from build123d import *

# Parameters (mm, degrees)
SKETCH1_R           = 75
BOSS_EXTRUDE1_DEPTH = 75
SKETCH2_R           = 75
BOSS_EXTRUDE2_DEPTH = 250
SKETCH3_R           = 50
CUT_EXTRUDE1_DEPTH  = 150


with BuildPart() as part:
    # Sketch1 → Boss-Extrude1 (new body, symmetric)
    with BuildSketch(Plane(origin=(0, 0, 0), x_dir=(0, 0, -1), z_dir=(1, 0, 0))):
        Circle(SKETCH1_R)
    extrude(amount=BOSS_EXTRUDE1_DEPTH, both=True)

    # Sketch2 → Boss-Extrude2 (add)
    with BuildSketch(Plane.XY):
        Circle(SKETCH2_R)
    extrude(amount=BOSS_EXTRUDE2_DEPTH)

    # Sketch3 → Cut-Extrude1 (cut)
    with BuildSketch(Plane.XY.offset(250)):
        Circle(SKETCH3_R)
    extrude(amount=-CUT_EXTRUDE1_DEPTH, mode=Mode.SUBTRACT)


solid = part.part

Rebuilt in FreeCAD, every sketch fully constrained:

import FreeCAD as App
import Part
import Sketcher
Q = App.Units.Quantity

doc = App.newDocument("Part")
params = doc.addObject("Spreadsheet::Sheet", "Params")
for row, (alias, value) in enumerate([
    ("sketch1_diameter", "150 mm"),
    ("pad1_length", "150 mm"),
    ("sketch2_diameter", "150 mm"),
    ("pad2_length", "250 mm"),
    ("sketch3_diameter", "100 mm"),
    ("pocket1_length", "150 mm"),
], start=1):
    params.set(f"A{row}", alias)
    params.set(f"B{row}", "=" + value)
    params.setAlias(f"B{row}", alias)

body = doc.addObject("PartDesign::Body", "Body")

# Sketch on YZ plane
sketch1 = body.newObject("Sketcher::SketchObject", "Sketch")
sketch1.AttachmentSupport = (doc.getObject("YZ_Plane"), [""])
sketch1.MapMode = "FlatFace"
sketch1.addGeometry(Part.Circle(App.Vector(0, 0, 0), App.Vector(0, 0, 1), 75), False)
sketch1.addConstraint(Sketcher.Constraint("Coincident", 0, 3, -1, 1))
sketch1.addConstraint(Sketcher.Constraint("Diameter", 0, Q("150 mm")))
sketch1.setExpression("Constraints[1]", "Params.sketch1_diameter")
pad1 = body.newObject("PartDesign::Pad", "Pad")
pad1.Profile = sketch1
pad1.setExpression("Length", "Params.pad1_length")
pad1.Midplane = True

# Sketch on XY plane
sketch2 = body.newObject("Sketcher::SketchObject", "Sketch001")
sketch2.AttachmentSupport = (doc.getObject("XY_Plane"), [""])
sketch2.MapMode = "FlatFace"
sketch2.addGeometry(Part.Circle(App.Vector(0, 0, 0), App.Vector(0, 0, 1), 75), False)
sketch2.addConstraint(Sketcher.Constraint("Coincident", 0, 3, -1, 1))
sketch2.addConstraint(Sketcher.Constraint("Diameter", 0, Q("150 mm")))
sketch2.setExpression("Constraints[1]", "Params.sketch2_diameter")
pad2 = body.newObject("PartDesign::Pad", "Pad001")
pad2.Profile = sketch2
pad2.setExpression("Length", "Params.pad2_length")

# Sketch on XY plane
sketch3 = body.newObject("Sketcher::SketchObject", "Sketch002")
sketch3.AttachmentSupport = (doc.getObject("XY_Plane"), [""])
sketch3.MapMode = "FlatFace"
sketch3.AttachmentOffset = App.Placement(App.Vector(0, 0, 250), App.Rotation())
sketch3.addGeometry(Part.Circle(App.Vector(0, 0, 0), App.Vector(0, 0, 1), 50), False)
sketch3.addConstraint(Sketcher.Constraint("Coincident", 0, 3, -1, 1))
sketch3.addConstraint(Sketcher.Constraint("Diameter", 0, Q("100 mm")))
sketch3.setExpression("Constraints[1]", "Params.sketch3_diameter")
pocket1 = body.newObject("PartDesign::Pocket", "Pocket")
pocket1.Profile = sketch3
pocket1.setExpression("Length", "Params.pocket1_length")

doc.recompute()
